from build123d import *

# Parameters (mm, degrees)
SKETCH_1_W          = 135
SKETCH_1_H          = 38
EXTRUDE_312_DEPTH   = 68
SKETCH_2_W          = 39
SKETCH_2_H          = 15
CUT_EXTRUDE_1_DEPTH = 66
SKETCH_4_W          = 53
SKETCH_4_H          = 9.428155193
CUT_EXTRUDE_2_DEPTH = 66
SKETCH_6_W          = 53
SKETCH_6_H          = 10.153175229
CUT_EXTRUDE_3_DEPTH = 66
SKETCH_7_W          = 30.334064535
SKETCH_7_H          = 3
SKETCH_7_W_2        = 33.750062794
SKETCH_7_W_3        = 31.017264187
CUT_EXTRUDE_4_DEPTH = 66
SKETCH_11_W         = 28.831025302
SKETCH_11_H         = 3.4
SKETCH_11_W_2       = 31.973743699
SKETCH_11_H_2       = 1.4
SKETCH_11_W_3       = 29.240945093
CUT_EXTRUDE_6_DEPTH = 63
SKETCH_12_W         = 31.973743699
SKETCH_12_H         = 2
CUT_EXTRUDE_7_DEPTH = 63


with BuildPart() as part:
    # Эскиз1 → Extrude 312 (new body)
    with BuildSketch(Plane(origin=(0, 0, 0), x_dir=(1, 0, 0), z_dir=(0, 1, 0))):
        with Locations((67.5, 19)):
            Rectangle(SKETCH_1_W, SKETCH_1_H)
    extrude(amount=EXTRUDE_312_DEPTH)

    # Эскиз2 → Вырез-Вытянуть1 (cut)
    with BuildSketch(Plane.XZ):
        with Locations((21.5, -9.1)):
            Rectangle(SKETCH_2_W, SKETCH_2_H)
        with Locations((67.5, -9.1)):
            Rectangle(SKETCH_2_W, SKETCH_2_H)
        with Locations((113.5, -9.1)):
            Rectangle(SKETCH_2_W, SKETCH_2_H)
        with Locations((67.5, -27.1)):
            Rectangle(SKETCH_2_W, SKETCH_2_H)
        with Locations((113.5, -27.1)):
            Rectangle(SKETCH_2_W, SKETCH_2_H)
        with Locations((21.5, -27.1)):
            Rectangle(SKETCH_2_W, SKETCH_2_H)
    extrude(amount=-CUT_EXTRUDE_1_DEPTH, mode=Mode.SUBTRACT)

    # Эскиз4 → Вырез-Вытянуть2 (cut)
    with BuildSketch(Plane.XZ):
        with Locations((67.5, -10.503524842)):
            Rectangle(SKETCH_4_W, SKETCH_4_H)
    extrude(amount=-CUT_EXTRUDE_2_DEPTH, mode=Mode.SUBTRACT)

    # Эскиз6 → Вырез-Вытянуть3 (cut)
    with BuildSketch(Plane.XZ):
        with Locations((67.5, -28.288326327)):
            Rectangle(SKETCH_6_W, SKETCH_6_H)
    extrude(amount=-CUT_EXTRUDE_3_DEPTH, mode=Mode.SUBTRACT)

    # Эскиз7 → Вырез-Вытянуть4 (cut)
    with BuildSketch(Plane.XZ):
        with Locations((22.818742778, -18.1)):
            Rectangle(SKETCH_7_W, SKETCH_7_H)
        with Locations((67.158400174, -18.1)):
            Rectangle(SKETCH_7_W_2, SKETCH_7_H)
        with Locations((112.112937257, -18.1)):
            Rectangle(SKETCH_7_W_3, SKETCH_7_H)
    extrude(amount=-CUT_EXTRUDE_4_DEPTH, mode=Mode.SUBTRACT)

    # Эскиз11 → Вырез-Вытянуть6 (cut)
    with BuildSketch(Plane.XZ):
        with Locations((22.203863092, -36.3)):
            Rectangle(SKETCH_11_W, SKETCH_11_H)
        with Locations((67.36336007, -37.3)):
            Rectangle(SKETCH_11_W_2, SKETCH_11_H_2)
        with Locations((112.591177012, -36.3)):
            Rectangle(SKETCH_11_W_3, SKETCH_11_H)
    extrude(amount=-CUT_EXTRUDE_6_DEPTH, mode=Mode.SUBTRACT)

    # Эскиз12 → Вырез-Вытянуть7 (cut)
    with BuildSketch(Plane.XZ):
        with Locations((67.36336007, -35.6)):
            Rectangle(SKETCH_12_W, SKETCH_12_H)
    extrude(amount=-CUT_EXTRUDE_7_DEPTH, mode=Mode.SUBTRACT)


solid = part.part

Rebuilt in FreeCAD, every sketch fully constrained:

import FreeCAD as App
import Part
import Sketcher

V = App.Vector
Q = App.Units.Quantity

doc = App.newDocument("Part")
body = doc.addObject("PartDesign::Body", "Body")

sketch1 = body.newObject("Sketcher::SketchObject", "Sketch")
sketch1.AttachmentSupport = (doc.getObject("XZ_Plane"), [""])
sketch1.MapMode = "FlatFace"
sketch1.addGeometry([
    Part.LineSegment(V(0, -38, 0), V(0, 0, 0)),
    Part.LineSegment(V(0, 0, 0), V(135, 0, 0)),
    Part.LineSegment(V(135, 0, 0), V(135, -38, 0)),
    Part.LineSegment(V(135, -38, 0), V(0, -38, 0)),
], False)
sketch1.addConstraint([
    Sketcher.Constraint("Coincident", 0, 2, 1, 1),
    Sketcher.Constraint("Coincident", 1, 2, 2, 1),
    Sketcher.Constraint("Coincident", 2, 2, 3, 1),
    Sketcher.Constraint("Coincident", 3, 2, 0, 1),
    Sketcher.Constraint("Vertical", 0),
    Sketcher.Constraint("Horizontal", 1),
    Sketcher.Constraint("Vertical", 2),
    Sketcher.Constraint("Horizontal", 3),
    Sketcher.Constraint("Coincident", 0, 2, -1, 1),
    Sketcher.Constraint("DistanceX", 1, 1, 1, 2, Q("135 mm")),
    Sketcher.Constraint("DistanceY", 0, 1, 0, 2, Q("38 mm")),
])
pad1 = body.newObject("PartDesign::Pad", "Pad")
pad1.Profile = sketch1
pad1.Length = 68
pad1.Reversed = True

sketch2 = body.newObject("Sketcher::SketchObject", "Sketch001")
sketch2.AttachmentSupport = (doc.getObject("XZ_Plane"), [""])
sketch2.MapMode = "FlatFace"
sketch2.addGeometry([
    Part.LineSegment(V(2, -2, 0), V(2, -17, 0)),
    Part.LineSegment(V(2, -17, 0), V(41, -17, 0)),
    Part.LineSegment(V(41, -17, 0), V(41, -2, 0)),
    Part.LineSegment(V(41, -2, 0), V(2, -2, 0)),
    Part.LineSegment(V(48, -2, 0), V(48, -17, 0)),
    Part.LineSegment(V(48, -17, 0), V(87, -17, 0)),
    Part.LineSegment(V(87, -17, 0), V(87, -2, 0)),
    Part.LineSegment(V(87, -2, 0), V(48, -2, 0)),
    Part.LineSegment(V(94, -2, 0), V(94, -17, 0)),
    Part.LineSegment(V(94, -17, 0), V(133, -17, 0)),
    Part.LineSegment(V(133, -17, 0), V(133, -2, 0)),
    Part.LineSegment(V(133, -2, 0), V(94, -2, 0)),
    Part.LineSegment(V(48, -20, 0), V(48, -35, 0)),
    Part.LineSegment(V(48, -35, 0), V(87, -35, 0)),
    Part.LineSegment(V(87, -35, 0), V(87, -20, 0)),
    Part.LineSegment(V(87, -20, 0), V(48, -20, 0)),
    Part.LineSegment(V(94, -20, 0), V(94, -35, 0)),
    Part.LineSegment(V(94, -35, 0), V(133, -35, 0)),
    Part.LineSegment(V(133, -35, 0), V(133, -20, 0)),
    Part.LineSegment(V(133, -20, 0), V(94, -20, 0)),
    Part.LineSegment(V(2, -20, 0), V(2, -35, 0)),
    Part.LineSegment(V(2, -35, 0), V(41, -35, 0)),
    Part.LineSegment(V(41, -35, 0), V(41, -20, 0)),
    Part.LineSegment(V(41, -20, 0), V(2, -20, 0)),
], False)
sketch2.addConstraint([
    Sketcher.Constraint("Coincident", 0, 2, 1, 1),
    Sketcher.Constraint("Coincident", 1, 2, 2, 1),
    Sketcher.Constraint("Coincident", 2, 2, 3, 1),
    Sketcher.Constraint("Coincident", 3, 2, 0, 1),
    Sketcher.Constraint("Coincident", 4, 2, 5, 1),
    Sketcher.Constraint("Coincident", 5, 2, 6, 1),
    Sketcher.Constraint("Coincident", 6, 2, 7, 1),
    Sketcher.Constraint("Coincident", 7, 2, 4, 1),
    Sketcher.Constraint("Coincident", 8, 2, 9, 1),
    Sketcher.Constraint("Coincident", 9, 2, 10, 1),
    Sketcher.Constraint("Coincident", 10, 2, 11, 1),
    Sketcher.Constraint("Coincident", 11, 2, 8, 1),
    Sketcher.Constraint("Coincident", 12, 2, 13, 1),
    Sketcher.Constraint("Coincident", 13, 2, 14, 1),
    Sketcher.Constraint("Coincident", 14, 2, 15, 1),
    Sketcher.Constraint("Coincident", 15, 2, 12, 1),
    Sketcher.Constraint("Coincident", 16, 2, 17, 1),
    Sketcher.Constraint("Coincident", 17, 2, 18, 1),
    Sketcher.Constraint("Coincident", 18, 2, 19, 1),
    Sketcher.Constraint("Coincident", 19, 2, 16, 1),
    Sketcher.Constraint("Coincident", 20, 2, 21, 1),
    Sketcher.Constraint("Coincident", 21, 2, 22, 1),
    Sketcher.Constraint("Coincident", 22, 2, 23, 1),
    Sketcher.Constraint("Coincident", 23, 2, 20, 1),
    Sketcher.Constraint("Vertical", 0),
    Sketcher.Constraint("Horizontal", 1),
    Sketcher.Constraint("Vertical", 2),
    Sketcher.Constraint("Horizontal", 3),
    Sketcher.Constraint("Vertical", 4),
    Sketcher.Constraint("Horizontal", 5),
    Sketcher.Constraint("Vertical", 6),
    Sketcher.Constraint("Horizontal", 7),
    Sketcher.Constraint("Vertical", 8),
    Sketcher.Constraint("Horizontal", 9),
    Sketcher.Constraint("Vertical", 10),
    Sketcher.Constraint("Horizontal", 11),
    Sketcher.Constraint("Vertical", 12),
    Sketcher.Constraint("Horizontal", 13),
    Sketcher.Constraint("Vertical", 14),
    Sketcher.Constraint("Horizontal", 15),
    Sketcher.Constraint("Vertical", 16),
    Sketcher.Constraint("Horizontal", 17),
    Sketcher.Constraint("Vertical", 18),
    Sketcher.Constraint("Horizontal", 19),
    Sketcher.Constraint("Vertical", 20),
    Sketcher.Constraint("Horizontal", 21),
    Sketcher.Constraint("Vertical", 22),
    Sketcher.Constraint("Horizontal", 23),
    Sketcher.Constraint("Horizontal", 1, 2, 4, 2),
    Sketcher.Constraint("Horizontal", 3, 2, 6, 2),
    Sketcher.Constraint("Horizontal", 5, 2, 8, 2),
    Sketcher.Constraint("Horizontal", 7, 2, 10, 2),
    Sketcher.Constraint("Horizontal", 13, 2, 16, 2),
    Sketcher.Constraint("Horizontal", 15, 2, 18, 2),
    Sketcher.Constraint("Horizontal", 17, 2, 20, 2),
    Sketcher.Constraint("Horizontal", 19, 2, 22, 2),
    Sketcher.Constraint("Vertical", 7, 2, 12, 2),
    Sketcher.Constraint("Vertical", 6, 2, 13, 2),
    Sketcher.Constraint("Vertical", 11, 2, 16, 2),
    Sketcher.Constraint("Vertical", 10, 2, 17, 2),
    Sketcher.Constraint("Vertical", 3, 2, 20, 2),
    Sketcher.Constraint("Vertical", 2, 2, 21, 2),
    Sketcher.Constraint("Equal", 3, 5),
    Sketcher.Constraint("Equal", 7, 9),
    Sketcher.Constraint("Equal", 10, 12),
    Sketcher.Constraint("DistanceX", 1, 1, 1, 2, Q("39 mm")),
    Sketcher.Constraint("DistanceY", 0, 2, 0, 1, Q("15 mm")),
    Sketcher.Constraint("DistanceX", -1, 1, 0, 2, Q("2 mm")),
    Sketcher.Constraint("DistanceX", -1, 1, 4, 2, Q("48 mm")),
    Sketcher.Constraint("DistanceX", -1, 1, 8, 2, Q("94 mm")),
    Sketcher.Constraint("DistanceY", 12, 2, 4, 2, Q("18 mm")),
    Sketcher.Constraint("DistanceY", 0, 2, -1, 1, Q("16.6 mm")),
])
pocket1 = body.newObject("PartDesign::Pocket", "Pocket")
pocket1.Profile = sketch2
pocket1.Length = 66

sketch3 = body.newObject("Sketcher::SketchObject", "Sketch002")
sketch3.AttachmentSupport = (doc.getObject("XZ_Plane"), [""])
sketch3.MapMode = "FlatFace"
sketch3.addGeometry([
    Part.LineSegment(V(41, -6, 0), V(41, -15, 0)),
    Part.LineSegment(V(41, -15, 0), V(94, -15, 0)),
    Part.LineSegment(V(94, -15, 0), V(94, -6, 0)),
    Part.LineSegment(V(94, -6, 0), V(41, -6, 0)),
], False)
sketch3.addConstraint([
    Sketcher.Constraint("Coincident", 0, 2, 1, 1),
    Sketcher.Constraint("Coincident", 1, 2, 2, 1),
    Sketcher.Constraint("Coincident", 2, 2, 3, 1),
    Sketcher.Constraint("Coincident", 3, 2, 0, 1),
    Sketcher.Constraint("Vertical", 0),
    Sketcher.Constraint("Horizontal", 1),
    Sketcher.Constraint("Vertical", 2),
    Sketcher.Constraint("Horizontal", 3),
    Sketcher.Constraint("DistanceX", 1, 1, 1, 2, Q("53 mm")),
    Sketcher.Constraint("DistanceX", -1, 1, 0, 2, Q("41 mm")),
    Sketcher.Constraint("DistanceY", 0, 2, 0, 1, Q("9.428155 mm")),
    Sketcher.Constraint("DistanceY", 0, 2, -1, 1, Q("15.217602 mm")),
])
pocket2 = body.newObject("PartDesign::Pocket", "Pocket001")
pocket2.Profile = sketch3
pocket2.Length = 66

sketch4 = body.newObject("Sketcher::SketchObject", "Sketch003")
sketch4.AttachmentSupport = (doc.getObject("XZ_Plane"), [""])
sketch4.MapMode = "FlatFace"
sketch4.addGeometry([
    Part.LineSegment(V(41, -23, 0), V(41, -33, 0)),
    Part.LineSegment(V(41, -33, 0), V(94, -33, 0)),
    Part.LineSegment(V(94, -33, 0), V(94, -23, 0)),
    Part.LineSegment(V(94, -23, 0), V(41, -23, 0)),
], False)
sketch4.addConstraint([
    Sketcher.Constraint("Coincident", 0, 2, 1, 1),
    Sketcher.Constraint("Coincident", 1, 2, 2, 1),
    Sketcher.Constraint("Coincident", 2, 2, 3, 1),
    Sketcher.Constraint("Coincident", 3, 2, 0, 1),
    Sketcher.Constraint("Vertical", 0),
    Sketcher.Constraint("Horizontal", 1),
    Sketcher.Constraint("Vertical", 2),
    Sketcher.Constraint("Horizontal", 3),
    Sketcher.Constraint("DistanceX", 1, 1, 1, 2, Q("53 mm")),
    Sketcher.Constraint("DistanceX", -1, 1, 0, 2, Q("41 mm")),
    Sketcher.Constraint("DistanceY", 0, 2, 0, 1, Q("10.153175 mm")),
    Sketcher.Constraint("DistanceY", 2, 2, -1, 1, Q("23.211739 mm")),
])
pocket3 = body.newObject("PartDesign::Pocket", "Pocket002")
pocket3.Profile = sketch4
pocket3.Length = 66

sketch5 = body.newObject("Sketcher::SketchObject", "Sketch004")
sketch5.AttachmentSupport = (doc.getObject("XZ_Plane"), [""])
sketch5.MapMode = "FlatFace"
sketch5.addGeometry([
    Part.LineSegment(V(7.7, -16.6, 0), V(7.7, -19.6, 0)),
    Part.LineSegment(V(7.7, -19.6, 0), V(38, -19.6, 0)),
    Part.LineSegment(V(38, -19.6, 0), V(38, -16.6, 0)),
    Part.LineSegment(V(38, -16.6, 0), V(7.7, -16.6, 0)),
    Part.LineSegment(V(50.3, -16.6, 0), V(50.3, -19.6, 0)),
    Part.LineSegment(V(50.3, -19.6, 0), V(84, -19.6, 0)),
    Part.LineSegment(V(84, -19.6, 0), V(84, -16.6, 0)),
    Part.LineSegment(V(84, -16.6, 0), V(50.3, -16.6, 0)),
    Part.LineSegment(V(96.6, -16.6, 0), V(96.6, -19.6, 0)),
    Part.LineSegment(V(96.6, -19.6, 0), V(127.6, -19.6, 0)),
    Part.LineSegment(V(127.6, -19.6, 0), V(127.6, -16.6, 0)),
    Part.LineSegment(V(127.6, -16.6, 0), V(96.6, -16.6, 0)),
], False)
sketch5.addConstraint([
    Sketcher.Constraint("Coincident", 0, 2, 1, 1),
    Sketcher.Constraint("Coincident", 1, 2, 2, 1),
    Sketcher.Constraint("Coincident", 2, 2, 3, 1),
    Sketcher.Constraint("Coincident", 3, 2, 0, 1),
    Sketcher.Constraint("Coincident", 4, 2, 5, 1),
    Sketcher.Constraint("Coincident", 5, 2, 6, 1),
    Sketcher.Constraint("Coincident", 6, 2, 7, 1),
    Sketcher.Constraint("Coincident", 7, 2, 4, 1),
    Sketcher.Constraint("Coincident", 8, 2, 9, 1),
    Sketcher.Constraint("Coincident", 9, 2, 10, 1),
    Sketcher.Constraint("Coincident", 10, 2, 11, 1),
    Sketcher.Constraint("Coincident", 11, 2, 8, 1),
    Sketcher.Constraint("Vertical", 0),
    Sketcher.Constraint("Horizontal", 1),
    Sketcher.Constraint("Vertical", 2),
    Sketcher.Constraint("Horizontal", 3),
    Sketcher.Constraint("Vertical", 4),
    Sketcher.Constraint("Horizontal", 5),
    Sketcher.Constraint("Vertical", 6),
    Sketcher.Constraint("Horizontal", 7),
    Sketcher.Constraint("Vertical", 8),
    Sketcher.Constraint("Horizontal", 9),
    Sketcher.Constraint("Vertical", 10),
    Sketcher.Constraint("Horizontal", 11),
    Sketcher.Constraint("Horizontal", 1, 2, 4, 2),
    Sketcher.Constraint("Horizontal", 3, 2, 6, 2),
    Sketcher.Constraint("Horizontal", 5, 2, 8, 2),
    Sketcher.Constraint("Horizontal", 7, 2, 10, 2),
    Sketcher.Constraint("DistanceY", 0, 2, 0, 1, Q("3 mm")),
    Sketcher.Constraint("DistanceY", 0, 2, -1, 1, Q("19.6 mm")),
    Sketcher.Constraint("DistanceX", 4, 2, 9, 2, Q("77.338201 mm")),
    Sketcher.Constraint("DistanceX", 1, 1, 1, 2, Q("30.334065 mm")),
    Sketcher.Constraint("DistanceX", 5, 1, 5, 2, Q("33.750063 mm")),
    Sketcher.Constraint("DistanceX", 9, 1, 9, 2, Q("31.017264 mm")),
    Sketcher.Constraint("DistanceX", -1, 1, 0, 2, Q("7.651711 mm")),
    Sketcher.Constraint("DistanceX", -1, 1, 4, 2, Q("50.283369 mm")),
])
pocket4 = body.newObject("PartDesign::Pocket", "Pocket003")
pocket4.Profile = sketch5
pocket4.Length = 66

sketch6 = body.newObject("Sketcher::SketchObject", "Sketch005")
sketch6.AttachmentSupport = (doc.getObject("XZ_Plane"), [""])
sketch6.MapMode = "FlatFace"
sketch6.addGeometry([
    Part.LineSegment(V(7.8, -34.6, 0), V(7.8, -38, 0)),
    Part.LineSegment(V(7.8, -38, 0), V(36.6, -38, 0)),
    Part.LineSegment(V(36.6, -38, 0), V(36.6, -34.6, 0)),
    Part.LineSegment(V(36.6, -34.6, 0), V(7.8, -34.6, 0)),
    Part.LineSegment(V(51.4, -36.6, 0), V(51.4, -38, 0)),
    Part.LineSegment(V(51.4, -38, 0), V(83.4, -38, 0)),
    Part.LineSegment(V(83.4, -38, 0), V(83.4, -36.6, 0)),
    Part.LineSegment(V(83.4, -36.6, 0), V(51.4, -36.6, 0)),
    Part.LineSegment(V(98, -34.6, 0), V(98, -38, 0)),
    Part.LineSegment(V(98, -38, 0), V(127.2, -38, 0)),
    Part.LineSegment(V(127.2, -38, 0), V(127.2, -34.6, 0)),
    Part.LineSegment(V(127.2, -34.6, 0), V(98, -34.6, 0)),
], False)
sketch6.addConstraint([
    Sketcher.Constraint("Coincident", 0, 2, 1, 1),
    Sketcher.Constraint("Coincident", 1, 2, 2, 1),
    Sketcher.Constraint("Coincident", 2, 2, 3, 1),
    Sketcher.Constraint("Coincident", 3, 2, 0, 1),
    Sketcher.Constraint("Coincident", 4, 2, 5, 1),
    Sketcher.Constraint("Coincident", 5, 2, 6, 1),
    Sketcher.Constraint("Coincident", 6, 2, 7, 1),
    Sketcher.Constraint("Coincident", 7, 2, 4, 1),
    Sketcher.Constraint("Coincident", 8, 2, 9, 1),
    Sketcher.Constraint("Coincident", 9, 2, 10, 1),
    Sketcher.Constraint("Coincident", 10, 2, 11, 1),
    Sketcher.Constraint("Coincident", 11, 2, 8, 1),
    Sketcher.Constraint("Vertical", 0),
    Sketcher.Constraint("Horizontal", 1),
    Sketcher.Constraint("Vertical", 2),
    Sketcher.Constraint("Horizontal", 3),
    Sketcher.Constraint("Vertical", 4),
    Sketcher.Constraint("Horizontal", 5),
    Sketcher.Constraint("Vertical", 6),
    Sketcher.Constraint("Horizontal", 7),
    Sketcher.Constraint("Vertical", 8),
    Sketcher.Constraint("Horizontal", 9),
    Sketcher.Constraint("Vertical", 10),
    Sketcher.Constraint("Horizontal", 11),
    Sketcher.Constraint("Horizontal", 1, 2, 4, 2),
    Sketcher.Constraint("Horizontal", 5, 2, 8, 2),
    Sketcher.Constraint("Horizontal", 3, 2, 10, 2),
    Sketcher.Constraint("DistanceY", 0, 2, 0, 1, Q("3.4 mm")),
    Sketcher.Constraint("DistanceY", 4, 2, 4, 1, Q("1.4 mm")),
    Sketcher.Constraint("DistanceY", 0, 2, -1, 1, Q("38 mm")),
    Sketcher.Constraint("DistanceX", 1, 1, 1, 2, Q("28.831025 mm")),
    Sketcher.Constraint("DistanceX", 5, 1, 5, 2, Q("31.973744 mm")),
    Sketcher.Constraint("DistanceX", 9, 1, 9, 2, Q("29.240945 mm")),
    Sketcher.Constraint("DistanceX", -1, 1, 0, 2, Q("7.78835 mm")),
    Sketcher.Constraint("DistanceX", -1, 1, 4, 2, Q("51.376488 mm")),
    Sketcher.Constraint("DistanceX", -1, 1, 9, 2, Q("127.21165 mm")),
])
pocket5 = body.newObject("PartDesign::Pocket", "Pocket004")
pocket5.Profile = sketch6
pocket5.Length = 63

sketch7 = body.newObject("Sketcher::SketchObject", "Sketch006")
sketch7.AttachmentSupport = (doc.getObject("XZ_Plane"), [""])
sketch7.MapMode = "FlatFace"
sketch7.addGeometry([
    Part.LineSegment(V(51.4, -34.6, 0), V(51.4, -36.6, 0)),
    Part.LineSegment(V(51.4, -36.6, 0), V(83.4, -36.6, 0)),
    Part.LineSegment(V(83.4, -36.6, 0), V(83.4, -34.6, 0)),
    Part.LineSegment(V(83.4, -34.6, 0), V(51.4, -34.6, 0)),
], False)
sketch7.addConstraint([
    Sketcher.Constraint("Coincident", 0, 2, 1, 1),
    Sketcher.Constraint("Coincident", 1, 2, 2, 1),
    Sketcher.Constraint("Coincident", 2, 2, 3, 1),
    Sketcher.Constraint("Coincident", 3, 2, 0, 1),
    Sketcher.Constraint("Vertical", 0),
    Sketcher.Constraint("Horizontal", 1),
    Sketcher.Constraint("Vertical", 2),
    Sketcher.Constraint("Horizontal", 3),
    Sketcher.Constraint("DistanceY", 0, 2, 0, 1, Q("2 mm")),
    Sketcher.Constraint("DistanceY", 0, 2, -1, 1, Q("36.6 mm")),
    Sketcher.Constraint("DistanceX", 1, 1, 1, 2, Q("31.973744 mm")),
    Sketcher.Constraint("DistanceX", -1, 1, 0, 2, Q("51.376488 mm")),
])
pocket6 = body.newObject("PartDesign::Pocket", "Pocket005")
pocket6.Profile = sketch7
pocket6.Length = 63

doc.recompute()
